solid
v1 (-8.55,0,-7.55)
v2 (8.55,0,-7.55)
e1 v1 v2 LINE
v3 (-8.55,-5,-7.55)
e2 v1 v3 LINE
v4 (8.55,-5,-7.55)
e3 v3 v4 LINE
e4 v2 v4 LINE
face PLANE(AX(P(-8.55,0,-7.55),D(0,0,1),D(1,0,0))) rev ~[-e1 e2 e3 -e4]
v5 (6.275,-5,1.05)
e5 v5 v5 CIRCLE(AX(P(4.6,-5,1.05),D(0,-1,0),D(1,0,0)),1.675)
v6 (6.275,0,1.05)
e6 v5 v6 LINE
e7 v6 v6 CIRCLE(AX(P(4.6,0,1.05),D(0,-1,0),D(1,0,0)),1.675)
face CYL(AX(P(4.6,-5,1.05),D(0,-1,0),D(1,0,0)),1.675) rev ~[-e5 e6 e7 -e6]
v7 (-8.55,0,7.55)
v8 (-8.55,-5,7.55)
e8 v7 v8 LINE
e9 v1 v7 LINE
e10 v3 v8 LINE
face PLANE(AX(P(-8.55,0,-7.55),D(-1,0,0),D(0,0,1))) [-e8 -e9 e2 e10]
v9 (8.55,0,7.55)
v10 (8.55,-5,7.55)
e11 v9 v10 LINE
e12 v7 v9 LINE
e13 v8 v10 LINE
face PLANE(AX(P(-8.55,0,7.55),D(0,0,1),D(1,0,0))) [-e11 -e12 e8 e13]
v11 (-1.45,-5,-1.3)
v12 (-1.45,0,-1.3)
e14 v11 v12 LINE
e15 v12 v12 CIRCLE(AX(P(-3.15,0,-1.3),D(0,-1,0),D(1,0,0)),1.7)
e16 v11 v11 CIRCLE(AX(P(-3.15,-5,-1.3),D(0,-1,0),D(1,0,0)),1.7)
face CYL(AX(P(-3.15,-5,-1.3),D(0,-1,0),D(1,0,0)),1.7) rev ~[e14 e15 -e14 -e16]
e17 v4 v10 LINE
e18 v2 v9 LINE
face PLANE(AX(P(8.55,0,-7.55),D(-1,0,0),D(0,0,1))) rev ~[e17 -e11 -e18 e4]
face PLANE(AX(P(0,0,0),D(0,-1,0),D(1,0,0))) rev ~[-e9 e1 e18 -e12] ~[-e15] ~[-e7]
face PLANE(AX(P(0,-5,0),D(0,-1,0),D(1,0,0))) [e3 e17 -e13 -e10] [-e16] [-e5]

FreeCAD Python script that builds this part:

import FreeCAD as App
import Part
import Sketcher

V = App.Vector
Q = App.Units.Quantity


def add_polygon(sketch, points):
    """Adds a closed chain of lines whose ends are joined by coincident constraints."""
    first, n = sketch.GeometryCount, len(points)
    for a, b in zip(points, points[1:] + points[:1]):
        sketch.addGeometry(Part.LineSegment(App.Vector(*a, 0), App.Vector(*b, 0)), False)
    for i in range(n):
        sketch.addConstraint(Sketcher.Constraint("Coincident", first + i, 2, first + (i + 1) % n, 1))

doc = App.newDocument("Part")
body = doc.addObject("PartDesign::Body", "Body")

# Sketch on XZ plane
sketch1 = body.newObject("Sketcher::SketchObject", "Sketch")
sketch1.AttachmentSupport = (doc.getObject("XZ_Plane"), [""])
sketch1.MapMode = "FlatFace"
add_polygon(sketch1, [(-9, 8), (-9, -8), (9, -8), (9, 8)])  # lines 0-3
sketch1.addConstraint([
    Sketcher.Constraint("Vertical", 0),
    Sketcher.Constraint("Horizontal", 1),
    Sketcher.Constraint("Vertical", 2),
    Sketcher.Constraint("Horizontal", 3),
    Sketcher.Constraint("Symmetric", 0, 2, 2, 2, -1, 1),
    Sketcher.Constraint("DistanceX", 1, 1, 1, 2, Q("17.1 mm")),
    Sketcher.Constraint("DistanceY", 0, 2, 0, 1, Q("15.1 mm")),
])
pad1 = body.newObject("PartDesign::Pad", "Pad")
pad1.Profile = sketch1
pad1.Length = 5

# Sketch on XZ plane
sketch2 = body.newObject("Sketcher::SketchObject", "Sketch001")
sketch2.AttachmentSupport = (doc.getObject("XZ_Plane"), [""])
sketch2.MapMode = "FlatFace"
sketch2.AttachmentOffset = App.Placement(V(0, 0, 5), App.Rotation())
sketch2.addGeometry([
    Part.Circle(V(4.6, 1.1, 0), V(0, 0, 1), 1.7),
    Part.Circle(V(-3.1, -1.3, 0), V(0, 0, 1), 1.7),
], False)
sketch2.addConstraint([
    Sketcher.Constraint("Diameter", 1, Q("3.4 mm")),
    Sketcher.Constraint("Diameter", 0, Q("3.35 mm")),
    Sketcher.Constraint("DistanceX", -1, 1, 0, 3, Q("4.6 mm")),
    Sketcher.Constraint("DistanceY", 1, 3, -1, 1, Q("1.3 mm")),
    Sketcher.Constraint("DistanceY", -1, 1, 0, 3, Q("1.05 mm")),
    Sketcher.Constraint("DistanceX", 1, 3, -1, 1, Q("3.15 mm")),
])
pocket1 = body.newObject("PartDesign::Pocket", "Pocket")
pocket1.Profile = sketch2
pocket1.Length = 25

doc.recompute()
